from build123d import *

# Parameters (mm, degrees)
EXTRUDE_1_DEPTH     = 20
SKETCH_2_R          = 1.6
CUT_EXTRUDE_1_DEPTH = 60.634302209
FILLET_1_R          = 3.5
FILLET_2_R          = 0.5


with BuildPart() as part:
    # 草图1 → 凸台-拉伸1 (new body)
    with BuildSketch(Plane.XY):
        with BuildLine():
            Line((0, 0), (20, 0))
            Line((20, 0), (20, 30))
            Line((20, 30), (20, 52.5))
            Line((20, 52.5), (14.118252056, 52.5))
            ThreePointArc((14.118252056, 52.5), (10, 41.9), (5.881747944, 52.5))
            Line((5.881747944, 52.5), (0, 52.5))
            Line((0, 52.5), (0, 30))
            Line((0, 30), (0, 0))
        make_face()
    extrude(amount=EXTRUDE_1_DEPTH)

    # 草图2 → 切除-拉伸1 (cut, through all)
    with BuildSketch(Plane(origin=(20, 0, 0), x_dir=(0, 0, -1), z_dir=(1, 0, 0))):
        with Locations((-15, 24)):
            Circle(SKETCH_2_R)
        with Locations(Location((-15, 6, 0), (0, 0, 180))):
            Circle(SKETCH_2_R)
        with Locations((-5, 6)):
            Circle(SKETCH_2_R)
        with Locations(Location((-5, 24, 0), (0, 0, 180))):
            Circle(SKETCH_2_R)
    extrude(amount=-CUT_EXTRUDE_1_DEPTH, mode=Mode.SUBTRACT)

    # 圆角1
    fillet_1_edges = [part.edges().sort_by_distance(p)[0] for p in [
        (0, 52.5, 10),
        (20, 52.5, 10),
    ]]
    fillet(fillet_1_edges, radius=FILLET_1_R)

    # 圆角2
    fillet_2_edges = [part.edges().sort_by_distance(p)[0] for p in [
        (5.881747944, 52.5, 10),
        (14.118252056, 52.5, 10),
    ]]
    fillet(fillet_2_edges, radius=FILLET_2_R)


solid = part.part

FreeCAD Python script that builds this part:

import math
import FreeCAD as App
import Part
import Sketcher
from FreeCAD import Vector
Q = App.Units.Quantity


def edges_at(feature, points):
    """Names of the edges that pass closest to the given points."""
    edges = feature.Shape.Edges
    near = lambda p: min(range(len(edges)), key=lambda i: edges[i].distToShape(Part.Vertex(*p))[0])
    return sorted({f"Edge{near(p) + 1}" for p in points})

doc = App.newDocument("Part")
body = doc.addObject("PartDesign::Body", "Body")

# Sketch on XY plane
sketch1 = body.newObject("Sketcher::SketchObject", "Sketch")
sketch1.AttachmentSupport = (doc.getObject("XY_Plane"), [""])
sketch1.MapMode = "FlatFace"
sketch1.addGeometry([
    Part.LineSegment(Vector(0, 0, 0), Vector(20, 0, 0)),  # 0
    Part.LineSegment(Vector(20, 0, 0), Vector(20, 52, 0)),  # 1
    Part.LineSegment(Vector(20, 52, 0), Vector(14, 52, 0)),  # 2
    Part.ArcOfCircle(Part.Circle(Vector(10, 48, 0), Vector(0, 0, 1), 6), math.radians(132), math.radians(408)),  # 3
    Part.LineSegment(Vector(6, 52, 0), Vector(0, 52, 0)),  # 4
    Part.LineSegment(Vector(0, 52, 0), Vector(0, 0, 0)),  # 5
], False)
sketch1.addConstraint([
    Sketcher.Constraint("Coincident", 0, 2, 1, 1),
    Sketcher.Constraint("Coincident", 1, 2, 2, 1),
    Sketcher.Constraint("Coincident", 2, 2, 3, 2),
    Sketcher.Constraint("Coincident", 3, 1, 4, 1),
    Sketcher.Constraint("Coincident", 4, 2, 5, 1),
    Sketcher.Constraint("Coincident", 5, 2, 0, 1),
    Sketcher.Constraint("Horizontal", 0),
    Sketcher.Constraint("Vertical", 1),
    Sketcher.Constraint("Horizontal", 2),
    Sketcher.Constraint("Horizontal", 4),
    Sketcher.Constraint("Vertical", 5),
    Sketcher.Constraint("Coincident", 5, 2, -1, 1),
    Sketcher.Constraint("Horizontal", 2, 2, 3, 1),
    Sketcher.Constraint("Equal", 2, 4),
    Sketcher.Constraint("Radius", 3, Q("6.1 mm")),
    Sketcher.Constraint("DistanceX", 0, 1, 0, 2, Q("20 mm")),
    Sketcher.Constraint("DistanceY", 1, 1, 1, 2, Q("52.5 mm")),
    Sketcher.Constraint("DistanceY", -1, 1, 3, 3, Q("48 mm")),
])
pad1 = body.newObject("PartDesign::Pad", "Pad")
pad1.Profile = sketch1
pad1.Length = 20

# Sketch on YZ plane
sketch2 = body.newObject("Sketcher::SketchObject", "Sketch001")
sketch2.AttachmentSupport = (doc.getObject("YZ_Plane"), [""])
sketch2.MapMode = "FlatFace"
sketch2.AttachmentOffset = App.Placement(Vector(0, 0, 20), App.Rotation())
sketch2.addGeometry([
    Part.Circle(Vector(24, 15, 0), Vector(0, 0, 1), 1.6),
    Part.Circle(Vector(6, 15, 0), Vector(0, 0, 1), 1.6),
    Part.Circle(Vector(6, 5, 0), Vector(0, 0, 1), 1.6),
    Part.Circle(Vector(24, 5, 0), Vector(0, 0, 1), 1.6),
], False)
sketch2.addConstraint([
    Sketcher.Constraint("Equal", 0, 1),
    Sketcher.Constraint("Equal", 1, 2),
    Sketcher.Constraint("Equal", 2, 3),
    Sketcher.Constraint("Horizontal", 0, 3, 1, 3),
    Sketcher.Constraint("Horizontal", 2, 3, 3, 3),
    Sketcher.Constraint("Vertical", 1, 3, 2, 3),
    Sketcher.Constraint("Vertical", 0, 3, 3, 3),
    Sketcher.Constraint("Diameter", 0, Q("3.2 mm")),
    Sketcher.Constraint("DistanceX", -1, 1, 0, 3, Q("24 mm")),
    Sketcher.Constraint("DistanceY", -1, 1, 0, 3, Q("15 mm")),
    Sketcher.Constraint("DistanceX", -1, 1, 1, 3, Q("6 mm")),
    Sketcher.Constraint("DistanceY", -1, 1, 2, 3, Q("5 mm")),
])
pocket1 = body.newObject("PartDesign::Pocket", "Pocket")
pocket1.Profile = sketch2
pocket1.Type = "ThroughAll"
doc.recompute()

fillet = body.newObject("PartDesign::Fillet", "Fillet")
fillet.Base = (pocket1, edges_at(pocket1, [(0, 52.5, 10), (20, 52.5, 10)]))
fillet.Radius = 3.5
doc.recompute()

fillet2 = body.newObject("PartDesign::Fillet", "Fillet001")
fillet2.Base = (fillet, edges_at(fillet, [(5.882, 52.5, 10), (14.118, 52.5, 10)]))
fillet2.Radius = 0.5

doc.recompute()
